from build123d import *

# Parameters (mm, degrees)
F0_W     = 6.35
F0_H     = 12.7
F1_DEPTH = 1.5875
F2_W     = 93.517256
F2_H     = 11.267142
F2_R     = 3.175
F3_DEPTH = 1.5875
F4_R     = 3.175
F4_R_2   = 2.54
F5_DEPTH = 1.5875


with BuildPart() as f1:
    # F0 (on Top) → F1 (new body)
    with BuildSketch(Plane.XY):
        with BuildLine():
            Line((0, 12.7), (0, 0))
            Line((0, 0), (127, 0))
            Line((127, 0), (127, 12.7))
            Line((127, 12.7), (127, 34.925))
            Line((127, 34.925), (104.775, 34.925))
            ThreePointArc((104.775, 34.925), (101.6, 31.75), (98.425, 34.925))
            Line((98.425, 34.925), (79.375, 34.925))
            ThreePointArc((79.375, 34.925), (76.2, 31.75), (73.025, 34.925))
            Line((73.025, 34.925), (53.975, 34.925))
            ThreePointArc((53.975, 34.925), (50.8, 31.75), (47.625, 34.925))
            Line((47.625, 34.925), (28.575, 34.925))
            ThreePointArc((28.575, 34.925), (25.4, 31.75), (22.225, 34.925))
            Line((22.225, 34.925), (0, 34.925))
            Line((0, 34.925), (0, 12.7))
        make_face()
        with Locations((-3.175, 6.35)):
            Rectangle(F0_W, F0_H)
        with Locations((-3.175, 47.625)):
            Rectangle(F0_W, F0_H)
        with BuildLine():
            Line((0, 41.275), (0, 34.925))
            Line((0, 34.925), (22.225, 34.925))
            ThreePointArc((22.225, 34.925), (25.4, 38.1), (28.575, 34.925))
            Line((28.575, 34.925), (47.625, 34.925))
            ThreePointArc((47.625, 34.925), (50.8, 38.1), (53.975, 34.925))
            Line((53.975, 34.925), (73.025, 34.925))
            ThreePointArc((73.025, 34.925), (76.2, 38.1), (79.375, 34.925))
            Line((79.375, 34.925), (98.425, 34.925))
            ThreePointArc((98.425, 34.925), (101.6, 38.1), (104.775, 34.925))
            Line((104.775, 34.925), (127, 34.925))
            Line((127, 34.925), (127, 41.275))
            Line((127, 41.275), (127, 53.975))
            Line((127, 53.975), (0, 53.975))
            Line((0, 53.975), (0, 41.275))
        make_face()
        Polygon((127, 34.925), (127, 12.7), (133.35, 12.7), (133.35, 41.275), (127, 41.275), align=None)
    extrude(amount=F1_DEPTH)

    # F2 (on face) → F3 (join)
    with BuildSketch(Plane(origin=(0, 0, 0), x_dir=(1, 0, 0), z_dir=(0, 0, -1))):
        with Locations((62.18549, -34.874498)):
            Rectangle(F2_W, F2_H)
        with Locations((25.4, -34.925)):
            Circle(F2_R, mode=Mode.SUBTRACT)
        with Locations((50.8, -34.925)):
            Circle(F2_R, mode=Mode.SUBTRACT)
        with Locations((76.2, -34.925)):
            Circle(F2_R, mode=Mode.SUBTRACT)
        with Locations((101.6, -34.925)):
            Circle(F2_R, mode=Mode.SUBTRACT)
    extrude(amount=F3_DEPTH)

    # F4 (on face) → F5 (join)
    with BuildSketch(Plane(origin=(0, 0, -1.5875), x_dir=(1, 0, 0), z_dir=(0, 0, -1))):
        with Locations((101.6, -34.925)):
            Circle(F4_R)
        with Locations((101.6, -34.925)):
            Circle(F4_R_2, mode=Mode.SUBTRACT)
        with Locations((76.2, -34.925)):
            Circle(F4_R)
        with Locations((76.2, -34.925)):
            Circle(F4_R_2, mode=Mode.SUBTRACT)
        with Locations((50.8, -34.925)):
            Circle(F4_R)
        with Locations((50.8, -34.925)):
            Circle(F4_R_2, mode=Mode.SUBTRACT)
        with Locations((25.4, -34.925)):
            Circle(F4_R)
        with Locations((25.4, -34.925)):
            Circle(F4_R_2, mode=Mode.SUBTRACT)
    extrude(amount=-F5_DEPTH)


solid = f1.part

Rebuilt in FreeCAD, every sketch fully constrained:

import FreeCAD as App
import Part
import Sketcher
Q = App.Units.Quantity

doc = App.newDocument("Part")
body = doc.addObject("PartDesign::Body", "Body")

sketch1 = body.newObject("Sketcher::SketchObject", "Sketch")
sketch1.AttachmentSupport = (doc.getObject("XY_Plane"), [""])
sketch1.MapMode = "FlatFace"
sketch1.addGeometry([
    Part.LineSegment(App.Vector(127, 0, 0), App.Vector(127, 12.7, 0)),
    Part.LineSegment(App.Vector(127, 12.7, 0), App.Vector(133.3, 12.7, 0)),
    Part.LineSegment(App.Vector(133.3, 12.7, 0), App.Vector(133.3, 41.3, 0)),
    Part.LineSegment(App.Vector(133.3, 41.3, 0), App.Vector(127, 41.3, 0)),
    Part.LineSegment(App.Vector(127, 41.3, 0), App.Vector(127, 54, 0)),
    Part.LineSegment(App.Vector(127, 54, 0), App.Vector(-6.3, 54, 0)),
    Part.LineSegment(App.Vector(-6.3, 54, 0), App.Vector(-6.3, 41.3, 0)),
    Part.LineSegment(App.Vector(-6.3, 41.3, 0), App.Vector(0, 41.3, 0)),
    Part.LineSegment(App.Vector(0, 41.3, 0), App.Vector(0, 12.7, 0)),
    Part.LineSegment(App.Vector(0, 12.7, 0), App.Vector(-6.3, 12.7, 0)),
    Part.LineSegment(App.Vector(-6.3, 12.7, 0), App.Vector(-6.3, 0, 0)),
    Part.LineSegment(App.Vector(-6.3, 0, 0), App.Vector(127, 0, 0)),
    Part.Circle(App.Vector(101.6, 34.9, 0), App.Vector(0, 0, 1), 3.2),
    Part.Circle(App.Vector(76.2, 34.9, 0), App.Vector(0, 0, 1), 3.2),
    Part.Circle(App.Vector(50.8, 34.9, 0), App.Vector(0, 0, 1), 3.2),
    Part.Circle(App.Vector(25.4, 34.9, 0), App.Vector(0, 0, 1), 3.2),
], False)
sketch1.addConstraint([
    Sketcher.Constraint("Coincident", 0, 2, 1, 1),
    Sketcher.Constraint("Coincident", 1, 2, 2, 1),
    Sketcher.Constraint("Coincident", 2, 2, 3, 1),
    Sketcher.Constraint("Coincident", 3, 2, 4, 1),
    Sketcher.Constraint("Coincident", 4, 2, 5, 1),
    Sketcher.Constraint("Coincident", 5, 2, 6, 1),
    Sketcher.Constraint("Coincident", 6, 2, 7, 1),
    Sketcher.Constraint("Coincident", 7, 2, 8, 1),
    Sketcher.Constraint("Coincident", 8, 2, 9, 1),
    Sketcher.Constraint("Coincident", 9, 2, 10, 1),
    Sketcher.Constraint("Coincident", 10, 2, 11, 1),
    Sketcher.Constraint("Coincident", 11, 2, 0, 1),
    Sketcher.Constraint("Vertical", 0),
    Sketcher.Constraint("Horizontal", 1),
    Sketcher.Constraint("Vertical", 2),
    Sketcher.Constraint("Horizontal", 3),
    Sketcher.Constraint("Vertical", 4),
    Sketcher.Constraint("Horizontal", 5),
    Sketcher.Constraint("Vertical", 6),
    Sketcher.Constraint("Horizontal", 7),
    Sketcher.Constraint("Vertical", 8),
    Sketcher.Constraint("Horizontal", 9),
    Sketcher.Constraint("Vertical", 10),
    Sketcher.Constraint("Horizontal", 11),
    Sketcher.Constraint("Equal", 12, 13),
    Sketcher.Constraint("Equal", 13, 14),
    Sketcher.Constraint("Equal", 14, 15),
    Sketcher.Constraint("PointOnObject", 7, 2, -2),
    Sketcher.Constraint("PointOnObject", 10, 2, -1),
    Sketcher.Constraint("Horizontal", 12, 3, 13, 3),
    Sketcher.Constraint("Horizontal", 13, 3, 14, 3),
    Sketcher.Constraint("Horizontal", 14, 3, 15, 3),
    Sketcher.Constraint("Horizontal", 3, 2, 6, 2),
    Sketcher.Constraint("Horizontal", 1, 2, 8, 2),
    Sketcher.Constraint("Vertical", 0, 2, 3, 2),
    Sketcher.Constraint("Vertical", 6, 2, 9, 2),
    Sketcher.Constraint("Equal", 3, 7),
    Sketcher.Constraint("Equal", 0, 4),
    Sketcher.Constraint("Diameter", 12, Q("0.25 in")),
    Sketcher.Constraint("DistanceY", 0, 1, 0, 2, Q("0.5 in")),
    Sketcher.Constraint("DistanceX", -1, 1, 12, 3, Q("4 in")),
    Sketcher.Constraint("DistanceX", -1, 1, 13, 3, Q("3 in")),
    Sketcher.Constraint("DistanceX", -1, 1, 14, 3, Q("2 in")),
    Sketcher.Constraint("DistanceX", -1, 1, 15, 3, Q("1 in")),
    Sketcher.Constraint("DistanceX", -1, 1, 0, 2, Q("5 in")),
    Sketcher.Constraint("DistanceX", 1, 1, 1, 2, Q("0.25 in")),
    Sketcher.Constraint("DistanceY", 2, 1, 2, 2, Q("1.125 in")),
    Sketcher.Constraint("DistanceY", 12, 3, 2, 2, Q("0.25 in")),
])
pad1 = body.newObject("PartDesign::Pad", "Pad")
pad1.Profile = sketch1
pad1.Length = Q("0.0625 in")

sketch2 = body.newObject("Sketcher::SketchObject", "Sketch001")
sketch2.AttachmentSupport = (doc.getObject("XY_Plane"), [""])
sketch2.MapMode = "FlatFace"
sketch2.addGeometry([
    Part.LineSegment(App.Vector(15.4, 29.2, 0), App.Vector(15.4, 40.5, 0)),
    Part.LineSegment(App.Vector(15.4, 40.5, 0), App.Vector(108.9, 40.5, 0)),
    Part.LineSegment(App.Vector(108.9, 40.5, 0), App.Vector(108.9, 29.2, 0)),
    Part.LineSegment(App.Vector(108.9, 29.2, 0), App.Vector(15.4, 29.2, 0)),
    Part.Circle(App.Vector(25.4, 34.9, 0), App.Vector(0, 0, 1), 3.2),
    Part.Circle(App.Vector(50.8, 34.9, 0), App.Vector(0, 0, 1), 3.2),
    Part.Circle(App.Vector(76.2, 34.9, 0), App.Vector(0, 0, 1), 3.2),
    Part.Circle(App.Vector(101.6, 34.9, 0), App.Vector(0, 0, 1), 3.2),
], False)
sketch2.addConstraint([
    Sketcher.Constraint("Coincident", 0, 2, 1, 1),
    Sketcher.Constraint("Coincident", 1, 2, 2, 1),
    Sketcher.Constraint("Coincident", 2, 2, 3, 1),
    Sketcher.Constraint("Coincident", 3, 2, 0, 1),
    Sketcher.Constraint("Vertical", 0),
    Sketcher.Constraint("Horizontal", 1),
    Sketcher.Constraint("Vertical", 2),
    Sketcher.Constraint("Horizontal", 3),
    Sketcher.Constraint("Equal", 4, 5),
    Sketcher.Constraint("Equal", 5, 6),
    Sketcher.Constraint("Equal", 6, 7),
    Sketcher.Constraint("Horizontal", 4, 3, 5, 3),
    Sketcher.Constraint("Horizontal", 5, 3, 6, 3),
    Sketcher.Constraint("Horizontal", 6, 3, 7, 3),
    Sketcher.Constraint("Diameter", 4, Q("0.25 in")),
    Sketcher.Constraint("DistanceX", -1, 1, 4, 3, Q("1 in")),
    Sketcher.Constraint("DistanceX", -1, 1, 5, 3, Q("2 in")),
    Sketcher.Constraint("DistanceX", -1, 1, 6, 3, Q("3 in")),
    Sketcher.Constraint("DistanceX", -1, 1, 7, 3, Q("4 in")),
    Sketcher.Constraint("DistanceY", -1, 1, 4, 3, Q("1.375 in")),
    Sketcher.Constraint("DistanceX", 1, 1, 1, 2, 93.517256),
    Sketcher.Constraint("DistanceY", 0, 1, 0, 2, 11.267142),
    Sketcher.Constraint("DistanceY", -1, 1, 0, 2, 40.508069),
    Sketcher.Constraint("DistanceX", -1, 1, 1, 2, 108.944118),
])
pad2 = body.newObject("PartDesign::Pad", "Pad001")
pad2.Profile = sketch2
pad2.Length = Q("0.0625 in")
pad2.Reversed = True

sketch3 = body.newObject("Sketcher::SketchObject", "Sketch002")
sketch3.AttachmentSupport = (doc.getObject("XY_Plane"), [""])
sketch3.MapMode = "FlatFace"
sketch3.AttachmentOffset = App.Placement(App.Vector(0, 0, -0.0625 * 25.4), App.Rotation())
sketch3.addGeometry([
    Part.Circle(App.Vector(101.6, 34.9, 0), App.Vector(0, 0, 1), 3.2),
    Part.Circle(App.Vector(101.6, 34.9, 0), App.Vector(0, 0, 1), 2.5),
    Part.Circle(App.Vector(76.2, 34.9, 0), App.Vector(0, 0, 1), 3.2),
    Part.Circle(App.Vector(76.2, 34.9, 0), App.Vector(0, 0, 1), 2.5),
    Part.Circle(App.Vector(50.8, 34.9, 0), App.Vector(0, 0, 1), 3.2),
    Part.Circle(App.Vector(50.8, 34.9, 0), App.Vector(0, 0, 1), 2.5),
    Part.Circle(App.Vector(25.4, 34.9, 0), App.Vector(0, 0, 1), 3.2),
    Part.Circle(App.Vector(25.4, 34.9, 0), App.Vector(0, 0, 1), 2.5),
], False)
sketch3.addConstraint([
    Sketcher.Constraint("Coincident", 1, 3, 0, 3),
    Sketcher.Constraint("Coincident", 3, 3, 2, 3),
    Sketcher.Constraint("Coincident", 5, 3, 4, 3),
    Sketcher.Constraint("Coincident", 7, 3, 6, 3),
    Sketcher.Constraint("Equal", 0, 2),
    Sketcher.Constraint("Equal", 1, 3),
    Sketcher.Constraint("Equal", 2, 4),
    Sketcher.Constraint("Equal", 3, 5),
    Sketcher.Constraint("Equal", 4, 6),
    Sketcher.Constraint("Equal", 5, 7),
    Sketcher.Constraint("Horizontal", 1, 3, 2, 3),
    Sketcher.Constraint("Horizontal", 3, 3, 4, 3),
    Sketcher.Constraint("Horizontal", 5, 3, 6, 3),
    Sketcher.Constraint("Diameter", 1, Q("0.2 in")),
    Sketcher.Constraint("Diameter", 0, Q("0.25 in")),
    Sketcher.Constraint("DistanceX", -1, 1, 0, 3, Q("4 in")),
    Sketcher.Constraint("DistanceX", -1, 1, 2, 3, Q("3 in")),
    Sketcher.Constraint("DistanceX", -1, 1, 4, 3, Q("2 in")),
    Sketcher.Constraint("DistanceX", -1, 1, 6, 3, Q("1 in")),
    Sketcher.Constraint("DistanceY", -1, 1, 0, 3, Q("1.375 in")),
])
pad3 = body.newObject("PartDesign::Pad", "Pad002")
pad3.Profile = sketch3
pad3.Length = Q("0.0625 in")

doc.recompute()
